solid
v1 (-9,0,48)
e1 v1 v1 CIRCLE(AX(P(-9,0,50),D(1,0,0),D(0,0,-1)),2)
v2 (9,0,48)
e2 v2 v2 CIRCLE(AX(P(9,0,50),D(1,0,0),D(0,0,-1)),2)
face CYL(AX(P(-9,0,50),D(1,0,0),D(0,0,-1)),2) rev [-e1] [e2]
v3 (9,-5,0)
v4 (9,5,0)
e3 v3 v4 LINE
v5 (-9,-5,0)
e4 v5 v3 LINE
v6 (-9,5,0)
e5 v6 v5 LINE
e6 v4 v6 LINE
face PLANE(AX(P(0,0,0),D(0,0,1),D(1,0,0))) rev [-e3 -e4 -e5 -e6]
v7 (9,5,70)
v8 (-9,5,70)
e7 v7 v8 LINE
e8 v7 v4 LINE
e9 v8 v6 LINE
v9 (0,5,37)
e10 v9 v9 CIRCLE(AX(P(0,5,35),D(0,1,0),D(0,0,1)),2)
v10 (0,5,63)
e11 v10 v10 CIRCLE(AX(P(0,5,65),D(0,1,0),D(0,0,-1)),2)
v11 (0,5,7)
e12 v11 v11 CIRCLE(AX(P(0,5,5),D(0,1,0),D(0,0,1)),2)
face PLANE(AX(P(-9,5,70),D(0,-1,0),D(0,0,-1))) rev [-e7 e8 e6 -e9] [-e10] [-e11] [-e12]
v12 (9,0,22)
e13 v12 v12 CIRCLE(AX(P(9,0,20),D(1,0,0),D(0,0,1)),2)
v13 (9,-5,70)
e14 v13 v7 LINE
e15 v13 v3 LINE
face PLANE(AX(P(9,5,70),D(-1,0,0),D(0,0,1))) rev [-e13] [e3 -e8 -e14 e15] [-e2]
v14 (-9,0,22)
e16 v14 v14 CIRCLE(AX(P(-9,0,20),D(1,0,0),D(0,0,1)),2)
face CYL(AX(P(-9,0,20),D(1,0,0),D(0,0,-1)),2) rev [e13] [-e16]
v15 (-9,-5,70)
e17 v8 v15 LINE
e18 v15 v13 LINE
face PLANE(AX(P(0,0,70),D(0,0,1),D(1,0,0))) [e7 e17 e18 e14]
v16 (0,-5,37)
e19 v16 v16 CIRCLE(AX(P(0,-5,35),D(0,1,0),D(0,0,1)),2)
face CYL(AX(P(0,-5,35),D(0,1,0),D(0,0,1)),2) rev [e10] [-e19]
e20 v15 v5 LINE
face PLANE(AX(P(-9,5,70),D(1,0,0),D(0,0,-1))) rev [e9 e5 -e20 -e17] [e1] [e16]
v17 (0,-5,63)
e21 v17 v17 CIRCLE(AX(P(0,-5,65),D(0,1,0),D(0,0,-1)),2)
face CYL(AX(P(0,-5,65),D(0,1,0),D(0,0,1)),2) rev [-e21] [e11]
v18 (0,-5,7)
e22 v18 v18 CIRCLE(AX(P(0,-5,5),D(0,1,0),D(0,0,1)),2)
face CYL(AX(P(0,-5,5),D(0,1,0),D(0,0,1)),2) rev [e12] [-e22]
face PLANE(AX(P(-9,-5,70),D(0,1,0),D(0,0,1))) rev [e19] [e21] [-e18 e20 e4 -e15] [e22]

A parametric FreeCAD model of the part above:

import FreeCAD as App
import Part
import Sketcher
from FreeCAD import Vector
Q = App.Units.Quantity


def add_polygon(sketch, points):
    """Adds a closed chain of lines whose ends are joined by coincident constraints."""
    first, n = sketch.GeometryCount, len(points)
    for a, b in zip(points, points[1:] + points[:1]):
        sketch.addGeometry(Part.LineSegment(App.Vector(*a, 0), App.Vector(*b, 0)), False)
    for i in range(n):
        sketch.addConstraint(Sketcher.Constraint("Coincident", first + i, 2, first + (i + 1) % n, 1))

doc = App.newDocument("Part")
params = doc.addObject("Spreadsheet::Sheet", "Params")
for row, (alias, value) in enumerate([
    ("sketch1_width", "18 mm"),
    ("sketch1_height", "10 mm"),
    ("pad1_length", "70 mm"),
    ("sketch2_diameter", "4 mm"),
    ("sketch3_diameter", "4 mm"),
], start=1):
    params.set(f"A{row}", alias)
    params.set(f"B{row}", "=" + value)
    params.setAlias(f"B{row}", alias)

body = doc.addObject("PartDesign::Body", "Body")

sketch1 = doc.addObject("Sketcher::SketchObject", "Sketch")
body.addObject(sketch1)
sketch1.AttachmentSupport = (doc.XY_Plane, [""])
sketch1.MapMode = "FlatFace"
add_polygon(sketch1, [(-9, 5), (-9, -5), (9, -5), (9, 5)])
sketch1.addConstraint(Sketcher.Constraint("Vertical", 0))
sketch1.addConstraint(Sketcher.Constraint("Horizontal", 1))
sketch1.addConstraint(Sketcher.Constraint("Vertical", 2))
sketch1.addConstraint(Sketcher.Constraint("Horizontal", 3))
sketch1.addConstraint(Sketcher.Constraint("Symmetric", 0, 2, 2, 2, -1, 1))
sketch1.addConstraint(Sketcher.Constraint("DistanceX", 1, 1, 1, 2, Q("18 mm")))
sketch1.addConstraint(Sketcher.Constraint("DistanceY", 0, 2, 0, 1, Q("10 mm")))
sketch1.setExpression("Constraints[9]", "Params.sketch1_width")
sketch1.setExpression("Constraints[10]", "Params.sketch1_height")
pad1 = doc.addObject("PartDesign::Pad", "Pad")
body.addObject(pad1)
pad1.Profile = sketch1
pad1.setExpression("Length", "Params.pad1_length")

sketch2 = doc.addObject("Sketcher::SketchObject", "Sketch001")
body.addObject(sketch2)
sketch2.AttachmentSupport = (doc.XZ_Plane, [""])
sketch2.MapMode = "FlatFace"
sketch2.AttachmentOffset = App.Placement(Vector(0, 0, -5), App.Rotation())
sketch2.addGeometry(Part.Circle(Vector(0, 5, 0), Vector(0, 0, 1), 2), False)
sketch2.addGeometry(Part.Circle(Vector(0, 35, 0), Vector(0, 0, 1), 2), False)
sketch2.addGeometry(Part.Circle(Vector(0, 65, 0), Vector(0, 0, 1), 2), False)
sketch2.addConstraint(Sketcher.Constraint("Equal", 0, 1))
sketch2.addConstraint(Sketcher.Constraint("Equal", 1, 2))
sketch2.addConstraint(Sketcher.Constraint("PointOnObject", 0, 3, -2))
sketch2.addConstraint(Sketcher.Constraint("PointOnObject", 1, 3, -2))
sketch2.addConstraint(Sketcher.Constraint("PointOnObject", 2, 3, -2))
sketch2.addConstraint(Sketcher.Constraint("Diameter", 0, Q("4 mm")))
sketch2.addConstraint(Sketcher.Constraint("DistanceY", -1, 1, 0, 3, Q("5 mm")))
sketch2.addConstraint(Sketcher.Constraint("DistanceY", -1, 1, 1, 3, Q("35 mm")))
sketch2.addConstraint(Sketcher.Constraint("DistanceY", -1, 1, 2, 3, Q("65 mm")))
sketch2.setExpression("Constraints[5]", "Params.sketch2_diameter")
pocket1 = doc.addObject("PartDesign::Pocket", "Pocket")
body.addObject(pocket1)
pocket1.Profile = sketch2
pocket1.Type = "ThroughAll"
pocket1.Reversed = True

sketch3 = doc.addObject("Sketcher::SketchObject", "Sketch002")
body.addObject(sketch3)
sketch3.AttachmentSupport = (doc.YZ_Plane, [""])
sketch3.MapMode = "FlatFace"
sketch3.AttachmentOffset = App.Placement(Vector(0, 0, 9), App.Rotation())
sketch3.addGeometry(Part.Circle(Vector(0, 50, 0), Vector(0, 0, 1), 2), False)
sketch3.addGeometry(Part.Circle(Vector(0, 20, 0), Vector(0, 0, 1), 2), False)
sketch3.addConstraint(Sketcher.Constraint("Equal", 0, 1))
sketch3.addConstraint(Sketcher.Constraint("PointOnObject", 0, 3, -2))
sketch3.addConstraint(Sketcher.Constraint("PointOnObject", 1, 3, -2))
sketch3.addConstraint(Sketcher.Constraint("Diameter", 0, Q("4 mm")))
sketch3.addConstraint(Sketcher.Constraint("DistanceY", -1, 1, 0, 3, Q("50 mm")))
sketch3.addConstraint(Sketcher.Constraint("DistanceY", -1, 1, 1, 3, Q("20 mm")))
sketch3.setExpression("Constraints[3]", "Params.sketch3_diameter")
pocket2 = doc.addObject("PartDesign::Pocket", "Pocket001")
body.addObject(pocket2)
pocket2.Profile = sketch3
pocket2.Type = "ThroughAll"

doc.recompute()
